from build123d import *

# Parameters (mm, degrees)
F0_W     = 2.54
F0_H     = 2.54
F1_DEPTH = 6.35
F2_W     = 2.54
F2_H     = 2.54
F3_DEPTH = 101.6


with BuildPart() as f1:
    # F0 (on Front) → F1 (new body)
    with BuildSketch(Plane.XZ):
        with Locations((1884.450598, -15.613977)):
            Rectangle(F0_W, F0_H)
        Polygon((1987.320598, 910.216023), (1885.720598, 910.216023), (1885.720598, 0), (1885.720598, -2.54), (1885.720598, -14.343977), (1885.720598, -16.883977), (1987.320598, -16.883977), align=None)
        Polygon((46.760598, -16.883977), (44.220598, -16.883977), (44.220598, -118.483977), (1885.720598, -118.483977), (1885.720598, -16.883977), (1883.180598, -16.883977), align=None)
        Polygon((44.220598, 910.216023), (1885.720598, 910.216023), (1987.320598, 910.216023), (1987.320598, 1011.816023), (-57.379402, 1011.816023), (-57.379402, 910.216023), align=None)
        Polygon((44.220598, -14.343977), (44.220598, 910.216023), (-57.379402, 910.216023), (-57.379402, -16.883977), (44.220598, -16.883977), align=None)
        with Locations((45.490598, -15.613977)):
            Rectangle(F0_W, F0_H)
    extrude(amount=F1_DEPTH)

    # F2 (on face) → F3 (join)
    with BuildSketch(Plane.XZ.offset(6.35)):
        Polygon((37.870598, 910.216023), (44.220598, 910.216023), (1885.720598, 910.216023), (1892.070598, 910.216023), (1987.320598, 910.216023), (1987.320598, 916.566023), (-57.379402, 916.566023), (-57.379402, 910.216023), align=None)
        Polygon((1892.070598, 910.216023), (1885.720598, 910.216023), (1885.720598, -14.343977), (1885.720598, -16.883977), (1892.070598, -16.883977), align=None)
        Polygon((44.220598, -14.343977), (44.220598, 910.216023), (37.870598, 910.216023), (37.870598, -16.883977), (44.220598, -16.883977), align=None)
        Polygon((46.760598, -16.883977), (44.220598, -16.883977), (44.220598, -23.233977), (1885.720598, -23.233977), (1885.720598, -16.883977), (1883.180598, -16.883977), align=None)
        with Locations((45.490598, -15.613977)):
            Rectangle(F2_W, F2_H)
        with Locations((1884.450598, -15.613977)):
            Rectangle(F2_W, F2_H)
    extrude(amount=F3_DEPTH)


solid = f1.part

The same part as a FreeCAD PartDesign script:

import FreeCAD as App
import Part
import Sketcher
Q = App.Units.Quantity

doc = App.newDocument("Part")
body = doc.addObject("PartDesign::Body", "Body")

sketch1 = body.newObject("Sketcher::SketchObject", "Sketch")
sketch1.AttachmentSupport = (doc.getObject("XZ_Plane"), [""])
sketch1.MapMode = "FlatFace"
sketch1.addGeometry(Part.LineSegment(App.Vector(-57.4, -16.9, 0), App.Vector(44.2, -16.9, 0)), False)
sketch1.addGeometry(Part.LineSegment(App.Vector(44.2, -16.9, 0), App.Vector(44.2, -118.5, 0)), False)
sketch1.addGeometry(Part.LineSegment(App.Vector(44.2, -118.5, 0), App.Vector(1885.7, -118.5, 0)), False)
sketch1.addGeometry(Part.LineSegment(App.Vector(1885.7, -118.5, 0), App.Vector(1885.7, -16.9, 0)), False)
sketch1.addGeometry(Part.LineSegment(App.Vector(1885.7, -16.9, 0), App.Vector(1987.3, -16.9, 0)), False)
sketch1.addGeometry(Part.LineSegment(App.Vector(1987.3, -16.9, 0), App.Vector(1987.3, 1011.8, 0)), False)
sketch1.addGeometry(Part.LineSegment(App.Vector(1987.3, 1011.8, 0), App.Vector(-57.4, 1011.8, 0)), False)
sketch1.addGeometry(Part.LineSegment(App.Vector(-57.4, 1011.8, 0), App.Vector(-57.4, -16.9, 0)), False)
sketch1.addGeometry(Part.LineSegment(App.Vector(1883.2, -16.9, 0), App.Vector(46.8, -16.9, 0)), False)
sketch1.addGeometry(Part.LineSegment(App.Vector(46.8, -16.9, 0), App.Vector(46.8, -14.3, 0)), False)
sketch1.addGeometry(Part.LineSegment(App.Vector(46.8, -14.3, 0), App.Vector(44.2, -14.3, 0)), False)
sketch1.addGeometry(Part.LineSegment(App.Vector(44.2, -14.3, 0), App.Vector(44.2, 910.2, 0)), False)
sketch1.addGeometry(Part.LineSegment(App.Vector(44.2, 910.2, 0), App.Vector(1885.7, 910.2, 0)), False)
sketch1.addGeometry(Part.LineSegment(App.Vector(1885.7, 910.2, 0), App.Vector(1885.7, -14.3, 0)), False)
sketch1.addGeometry(Part.LineSegment(App.Vector(1885.7, -14.3, 0), App.Vector(1883.2, -14.3, 0)), False)
sketch1.addGeometry(Part.LineSegment(App.Vector(1883.2, -14.3, 0), App.Vector(1883.2, -16.9, 0)), False)
sketch1.addConstraint(Sketcher.Constraint("Coincident", 0, 2, 1, 1))
sketch1.addConstraint(Sketcher.Constraint("Coincident", 1, 2, 2, 1))
sketch1.addConstraint(Sketcher.Constraint("Coincident", 2, 2, 3, 1))
sketch1.addConstraint(Sketcher.Constraint("Coincident", 3, 2, 4, 1))
sketch1.addConstraint(Sketcher.Constraint("Coincident", 4, 2, 5, 1))
sketch1.addConstraint(Sketcher.Constraint("Coincident", 5, 2, 6, 1))
sketch1.addConstraint(Sketcher.Constraint("Coincident", 6, 2, 7, 1))
sketch1.addConstraint(Sketcher.Constraint("Coincident", 7, 2, 0, 1))
sketch1.addConstraint(Sketcher.Constraint("Coincident", 8, 2, 9, 1))
sketch1.addConstraint(Sketcher.Constraint("Coincident", 9, 2, 10, 1))
sketch1.addConstraint(Sketcher.Constraint("Coincident", 10, 2, 11, 1))
sketch1.addConstraint(Sketcher.Constraint("Coincident", 11, 2, 12, 1))
sketch1.addConstraint(Sketcher.Constraint("Coincident", 12, 2, 13, 1))
sketch1.addConstraint(Sketcher.Constraint("Coincident", 13, 2, 14, 1))
sketch1.addConstraint(Sketcher.Constraint("Coincident", 14, 2, 15, 1))
sketch1.addConstraint(Sketcher.Constraint("Coincident", 15, 2, 8, 1))
sketch1.addConstraint(Sketcher.Constraint("Horizontal", 0))
sketch1.addConstraint(Sketcher.Constraint("Vertical", 1))
sketch1.addConstraint(Sketcher.Constraint("Horizontal", 2))
sketch1.addConstraint(Sketcher.Constraint("Vertical", 3))
sketch1.addConstraint(Sketcher.Constraint("Horizontal", 4))
sketch1.addConstraint(Sketcher.Constraint("Vertical", 5))
sketch1.addConstraint(Sketcher.Constraint("Horizontal", 6))
sketch1.addConstraint(Sketcher.Constraint("Vertical", 7))
sketch1.addConstraint(Sketcher.Constraint("Horizontal", 8))
sketch1.addConstraint(Sketcher.Constraint("Vertical", 9))
sketch1.addConstraint(Sketcher.Constraint("Horizontal", 10))
sketch1.addConstraint(Sketcher.Constraint("Vertical", 11))
sketch1.addConstraint(Sketcher.Constraint("Horizontal", 12))
sketch1.addConstraint(Sketcher.Constraint("Vertical", 13))
sketch1.addConstraint(Sketcher.Constraint("Horizontal", 14))
sketch1.addConstraint(Sketcher.Constraint("Vertical", 15))
sketch1.addConstraint(Sketcher.Constraint("Horizontal", 0, 2, 3, 2))
sketch1.addConstraint(Sketcher.Constraint("Horizontal", 7, 2, 8, 2))
sketch1.addConstraint(Sketcher.Constraint("Horizontal", 10, 2, 13, 2))
sketch1.addConstraint(Sketcher.Constraint("Vertical", 1, 2, 10, 2))
sketch1.addConstraint(Sketcher.Constraint("Vertical", 3, 2, 12, 2))
sketch1.addConstraint(Sketcher.Constraint("Equal", 0, 4))
sketch1.addConstraint(Sketcher.Constraint("Equal", 10, 14))
sketch1.addConstraint(Sketcher.Constraint("Equal", 4, 1))
sketch1.addConstraint(Sketcher.Constraint("Equal", 14, 9))
sketch1.addConstraint(Sketcher.Constraint("DistanceX", 0, 1, 0, 2, Q("4 in")))
sketch1.addConstraint(Sketcher.Constraint("DistanceX", 2, 1, 2, 2, Q("72.5 in")))
sketch1.addConstraint(Sketcher.Constraint("DistanceX", 8, 2, 8, 1, Q("72.3 in")))
sketch1.addConstraint(Sketcher.Constraint("DistanceY", 5, 1, 5, 2, Q("40.5 in")))
sketch1.addConstraint(Sketcher.Constraint("DistanceY", 11, 1, 11, 2, Q("36.4 in")))
sketch1.addConstraint(Sketcher.Constraint("DistanceX", -1, 1, 0, 2, 44.220598))
sketch1.addConstraint(Sketcher.Constraint("DistanceY", 0, 2, -1, 1, 16.883977))
pad1 = body.newObject("PartDesign::Pad", "Pad")
pad1.Profile = sketch1
pad1.Length = Q("0.25 in")

sketch2 = body.newObject("Sketcher::SketchObject", "Sketch001")
sketch2.AttachmentSupport = (doc.getObject("XZ_Plane"), [""])
sketch2.MapMode = "FlatFace"
sketch2.AttachmentOffset = App.Placement(App.Vector(0, 0, 0.25 * 25.4), App.Rotation())
sketch2.addGeometry(Part.LineSegment(App.Vector(1885.7, -23.2, 0), App.Vector(1885.7, -16.9, 0)), False)
sketch2.addGeometry(Part.LineSegment(App.Vector(1885.7, -16.9, 0), App.Vector(1892.1, -16.9, 0)), False)
sketch2.addGeometry(Part.LineSegment(App.Vector(1892.1, -16.9, 0), App.Vector(1892.1, 910.2, 0)), False)
sketch2.addGeometry(Part.LineSegment(App.Vector(1892.1, 910.2, 0), App.Vector(1987.3, 910.2, 0)), False)
sketch2.addGeometry(Part.LineSegment(App.Vector(1987.3, 910.2, 0), App.Vector(1987.3, 916.6, 0)), False)
sketch2.addGeometry(Part.LineSegment(App.Vector(1987.3, 916.6, 0), App.Vector(-57.4, 916.6, 0)), False)
sketch2.addGeometry(Part.LineSegment(App.Vector(-57.4, 916.6, 0), App.Vector(-57.4, 910.2, 0)), False)
sketch2.addGeometry(Part.LineSegment(App.Vector(-57.4, 910.2, 0), App.Vector(37.9, 910.2, 0)), False)
sketch2.addGeometry(Part.LineSegment(App.Vector(37.9, 910.2, 0), App.Vector(37.9, -16.9, 0)), False)
sketch2.addGeometry(Part.LineSegment(App.Vector(37.9, -16.9, 0), App.Vector(44.2, -16.9, 0)), False)
sketch2.addGeometry(Part.LineSegment(App.Vector(44.2, -16.9, 0), App.Vector(44.2, -23.2, 0)), False)
sketch2.addGeometry(Part.LineSegment(App.Vector(44.2, -23.2, 0), App.Vector(1885.7, -23.2, 0)), False)
sketch2.addGeometry(Part.LineSegment(App.Vector(1885.7, 910.2, 0), App.Vector(1885.7, -14.3, 0)), False)
sketch2.addGeometry(Part.LineSegment(App.Vector(1885.7, -14.3, 0), App.Vector(1883.2, -14.3, 0)), False)
sketch2.addGeometry(Part.LineSegment(App.Vector(1883.2, -14.3, 0), App.Vector(1883.2, -16.9, 0)), False)
sketch2.addGeometry(Part.LineSegment(App.Vector(1883.2, -16.9, 0), App.Vector(46.8, -16.9, 0)), False)
sketch2.addGeometry(Part.LineSegment(App.Vector(46.8, -16.9, 0), App.Vector(46.8, -14.3, 0)), False)
sketch2.addGeometry(Part.LineSegment(App.Vector(46.8, -14.3, 0), App.Vector(44.2, -14.3, 0)), False)
sketch2.addGeometry(Part.LineSegment(App.Vector(44.2, -14.3, 0), App.Vector(44.2, 910.2, 0)), False)
sketch2.addGeometry(Part.LineSegment(App.Vector(44.2, 910.2, 0), App.Vector(1885.7, 910.2, 0)), False)
sketch2.addConstraint(Sketcher.Constraint("Coincident", 0, 2, 1, 1))
sketch2.addConstraint(Sketcher.Constraint("Coincident", 1, 2, 2, 1))
sketch2.addConstraint(Sketcher.Constraint("Coincident", 2, 2, 3, 1))
sketch2.addConstraint(Sketcher.Constraint("Coincident", 3, 2, 4, 1))
sketch2.addConstraint(Sketcher.Constraint("Coincident", 4, 2, 5, 1))
sketch2.addConstraint(Sketcher.Constraint("Coincident", 5, 2, 6, 1))
sketch2.addConstraint(Sketcher.Constraint("Coincident", 6, 2, 7, 1))
sketch2.addConstraint(Sketcher.Constraint("Coincident", 7, 2, 8, 1))
sketch2.addConstraint(Sketcher.Constraint("Coincident", 8, 2, 9, 1))
sketch2.addConstraint(Sketcher.Constraint("Coincident", 9, 2, 10, 1))
sketch2.addConstraint(Sketcher.Constraint("Coincident", 10, 2, 11, 1))
sketch2.addConstraint(Sketcher.Constraint("Coincident", 11, 2, 0, 1))
sketch2.addConstraint(Sketcher.Constraint("Coincident", 12, 2, 13, 1))
sketch2.addConstraint(Sketcher.Constraint("Coincident", 13, 2, 14, 1))
sketch2.addConstraint(Sketcher.Constraint("Coincident", 14, 2, 15, 1))
sketch2.addConstraint(Sketcher.Constraint("Coincident", 15, 2, 16, 1))
sketch2.addConstraint(Sketcher.Constraint("Coincident", 16, 2, 17, 1))
sketch2.addConstraint(Sketcher.Constraint("Coincident", 17, 2, 18, 1))
sketch2.addConstraint(Sketcher.Constraint("Coincident", 18, 2, 19, 1))
sketch2.addConstraint(Sketcher.Constraint("Coincident", 19, 2, 12, 1))
sketch2.addConstraint(Sketcher.Constraint("Vertical", 0))
sketch2.addConstraint(Sketcher.Constraint("Horizontal", 1))
sketch2.addConstraint(Sketcher.Constraint("Vertical", 2))
sketch2.addConstraint(Sketcher.Constraint("Horizontal", 3))
sketch2.addConstraint(Sketcher.Constraint("Vertical", 4))
sketch2.addConstraint(Sketcher.Constraint("Horizontal", 5))
sketch2.addConstraint(Sketcher.Constraint("Vertical", 6))
sketch2.addConstraint(Sketcher.Constraint("Horizontal", 7))
sketch2.addConstraint(Sketcher.Constraint("Vertical", 8))
sketch2.addConstraint(Sketcher.Constraint("Horizontal", 9))
sketch2.addConstraint(Sketcher.Constraint("Vertical", 10))
sketch2.addConstraint(Sketcher.Constraint("Horizontal", 11))
sketch2.addConstraint(Sketcher.Constraint("Vertical", 12))
sketch2.addConstraint(Sketcher.Constraint("Horizontal", 13))
sketch2.addConstraint(Sketcher.Constraint("Vertical", 14))
sketch2.addConstraint(Sketcher.Constraint("Horizontal", 15))
sketch2.addConstraint(Sketcher.Constraint("Vertical", 16))
sketch2.addConstraint(Sketcher.Constraint("Horizontal", 17))
sketch2.addConstraint(Sketcher.Constraint("Vertical", 18))
sketch2.addConstraint(Sketcher.Constraint("Horizontal", 19))
sketch2.addConstraint(Sketcher.Constraint("Horizontal", 3, 2, 6, 2))
sketch2.addConstraint(Sketcher.Constraint("Horizontal", 1, 2, 8, 2))
sketch2.addConstraint(Sketcher.Constraint("Horizontal", 9, 2, 14, 2))
sketch2.addConstraint(Sketcher.Constraint("Horizontal", 13, 2, 16, 2))
sketch2.addConstraint(Sketcher.Constraint("Horizontal", 7, 2, 18, 2))
sketch2.addConstraint(Sketcher.Constraint("Vertical", 11, 2, 12, 2))
sketch2.addConstraint(Sketcher.Constraint("Vertical", 10, 2, 17, 2))
sketch2.addConstraint(Sketcher.Constraint("Equal", 3, 7))
sketch2.addConstraint(Sketcher.Constraint("Equal", 1, 9))
sketch2.addConstraint(Sketcher.Constraint("Equal", 13, 17))
sketch2.addConstraint(Sketcher.Constraint("Equal", 9, 0))
sketch2.addConstraint(Sketcher.Constraint("Equal", 0, 4))
sketch2.addConstraint(Sketcher.Constraint("Equal", 17, 14))
sketch2.addConstraint(Sketcher.Constraint("DistanceX", 5, 2, 5, 1, Q("80.5 in")))
sketch2.addConstraint(Sketcher.Constraint("DistanceX", 11, 1, 11, 2, Q("72.5 in")))
sketch2.addConstraint(Sketcher.Constraint("DistanceX", 13, 2, 13, 1, Q("0.1 in")))
sketch2.addConstraint(Sketcher.Constraint("DistanceY", 2, 1, 2, 2, Q("36.5 in")))
sketch2.addConstraint(Sketcher.Constraint("DistanceX", 7, 2, 2, 2, Q("73 in")))
sketch2.addConstraint(Sketcher.Constraint("DistanceX", -1, 1, 0, 2, 1885.720598))
sketch2.addConstraint(Sketcher.Constraint("DistanceY", 0, 2, -1, 1, 16.883977))
pad2 = body.newObject("PartDesign::Pad", "Pad001")
pad2.Profile = sketch2
pad2.Length = Q("4 in")

doc.recompute()
